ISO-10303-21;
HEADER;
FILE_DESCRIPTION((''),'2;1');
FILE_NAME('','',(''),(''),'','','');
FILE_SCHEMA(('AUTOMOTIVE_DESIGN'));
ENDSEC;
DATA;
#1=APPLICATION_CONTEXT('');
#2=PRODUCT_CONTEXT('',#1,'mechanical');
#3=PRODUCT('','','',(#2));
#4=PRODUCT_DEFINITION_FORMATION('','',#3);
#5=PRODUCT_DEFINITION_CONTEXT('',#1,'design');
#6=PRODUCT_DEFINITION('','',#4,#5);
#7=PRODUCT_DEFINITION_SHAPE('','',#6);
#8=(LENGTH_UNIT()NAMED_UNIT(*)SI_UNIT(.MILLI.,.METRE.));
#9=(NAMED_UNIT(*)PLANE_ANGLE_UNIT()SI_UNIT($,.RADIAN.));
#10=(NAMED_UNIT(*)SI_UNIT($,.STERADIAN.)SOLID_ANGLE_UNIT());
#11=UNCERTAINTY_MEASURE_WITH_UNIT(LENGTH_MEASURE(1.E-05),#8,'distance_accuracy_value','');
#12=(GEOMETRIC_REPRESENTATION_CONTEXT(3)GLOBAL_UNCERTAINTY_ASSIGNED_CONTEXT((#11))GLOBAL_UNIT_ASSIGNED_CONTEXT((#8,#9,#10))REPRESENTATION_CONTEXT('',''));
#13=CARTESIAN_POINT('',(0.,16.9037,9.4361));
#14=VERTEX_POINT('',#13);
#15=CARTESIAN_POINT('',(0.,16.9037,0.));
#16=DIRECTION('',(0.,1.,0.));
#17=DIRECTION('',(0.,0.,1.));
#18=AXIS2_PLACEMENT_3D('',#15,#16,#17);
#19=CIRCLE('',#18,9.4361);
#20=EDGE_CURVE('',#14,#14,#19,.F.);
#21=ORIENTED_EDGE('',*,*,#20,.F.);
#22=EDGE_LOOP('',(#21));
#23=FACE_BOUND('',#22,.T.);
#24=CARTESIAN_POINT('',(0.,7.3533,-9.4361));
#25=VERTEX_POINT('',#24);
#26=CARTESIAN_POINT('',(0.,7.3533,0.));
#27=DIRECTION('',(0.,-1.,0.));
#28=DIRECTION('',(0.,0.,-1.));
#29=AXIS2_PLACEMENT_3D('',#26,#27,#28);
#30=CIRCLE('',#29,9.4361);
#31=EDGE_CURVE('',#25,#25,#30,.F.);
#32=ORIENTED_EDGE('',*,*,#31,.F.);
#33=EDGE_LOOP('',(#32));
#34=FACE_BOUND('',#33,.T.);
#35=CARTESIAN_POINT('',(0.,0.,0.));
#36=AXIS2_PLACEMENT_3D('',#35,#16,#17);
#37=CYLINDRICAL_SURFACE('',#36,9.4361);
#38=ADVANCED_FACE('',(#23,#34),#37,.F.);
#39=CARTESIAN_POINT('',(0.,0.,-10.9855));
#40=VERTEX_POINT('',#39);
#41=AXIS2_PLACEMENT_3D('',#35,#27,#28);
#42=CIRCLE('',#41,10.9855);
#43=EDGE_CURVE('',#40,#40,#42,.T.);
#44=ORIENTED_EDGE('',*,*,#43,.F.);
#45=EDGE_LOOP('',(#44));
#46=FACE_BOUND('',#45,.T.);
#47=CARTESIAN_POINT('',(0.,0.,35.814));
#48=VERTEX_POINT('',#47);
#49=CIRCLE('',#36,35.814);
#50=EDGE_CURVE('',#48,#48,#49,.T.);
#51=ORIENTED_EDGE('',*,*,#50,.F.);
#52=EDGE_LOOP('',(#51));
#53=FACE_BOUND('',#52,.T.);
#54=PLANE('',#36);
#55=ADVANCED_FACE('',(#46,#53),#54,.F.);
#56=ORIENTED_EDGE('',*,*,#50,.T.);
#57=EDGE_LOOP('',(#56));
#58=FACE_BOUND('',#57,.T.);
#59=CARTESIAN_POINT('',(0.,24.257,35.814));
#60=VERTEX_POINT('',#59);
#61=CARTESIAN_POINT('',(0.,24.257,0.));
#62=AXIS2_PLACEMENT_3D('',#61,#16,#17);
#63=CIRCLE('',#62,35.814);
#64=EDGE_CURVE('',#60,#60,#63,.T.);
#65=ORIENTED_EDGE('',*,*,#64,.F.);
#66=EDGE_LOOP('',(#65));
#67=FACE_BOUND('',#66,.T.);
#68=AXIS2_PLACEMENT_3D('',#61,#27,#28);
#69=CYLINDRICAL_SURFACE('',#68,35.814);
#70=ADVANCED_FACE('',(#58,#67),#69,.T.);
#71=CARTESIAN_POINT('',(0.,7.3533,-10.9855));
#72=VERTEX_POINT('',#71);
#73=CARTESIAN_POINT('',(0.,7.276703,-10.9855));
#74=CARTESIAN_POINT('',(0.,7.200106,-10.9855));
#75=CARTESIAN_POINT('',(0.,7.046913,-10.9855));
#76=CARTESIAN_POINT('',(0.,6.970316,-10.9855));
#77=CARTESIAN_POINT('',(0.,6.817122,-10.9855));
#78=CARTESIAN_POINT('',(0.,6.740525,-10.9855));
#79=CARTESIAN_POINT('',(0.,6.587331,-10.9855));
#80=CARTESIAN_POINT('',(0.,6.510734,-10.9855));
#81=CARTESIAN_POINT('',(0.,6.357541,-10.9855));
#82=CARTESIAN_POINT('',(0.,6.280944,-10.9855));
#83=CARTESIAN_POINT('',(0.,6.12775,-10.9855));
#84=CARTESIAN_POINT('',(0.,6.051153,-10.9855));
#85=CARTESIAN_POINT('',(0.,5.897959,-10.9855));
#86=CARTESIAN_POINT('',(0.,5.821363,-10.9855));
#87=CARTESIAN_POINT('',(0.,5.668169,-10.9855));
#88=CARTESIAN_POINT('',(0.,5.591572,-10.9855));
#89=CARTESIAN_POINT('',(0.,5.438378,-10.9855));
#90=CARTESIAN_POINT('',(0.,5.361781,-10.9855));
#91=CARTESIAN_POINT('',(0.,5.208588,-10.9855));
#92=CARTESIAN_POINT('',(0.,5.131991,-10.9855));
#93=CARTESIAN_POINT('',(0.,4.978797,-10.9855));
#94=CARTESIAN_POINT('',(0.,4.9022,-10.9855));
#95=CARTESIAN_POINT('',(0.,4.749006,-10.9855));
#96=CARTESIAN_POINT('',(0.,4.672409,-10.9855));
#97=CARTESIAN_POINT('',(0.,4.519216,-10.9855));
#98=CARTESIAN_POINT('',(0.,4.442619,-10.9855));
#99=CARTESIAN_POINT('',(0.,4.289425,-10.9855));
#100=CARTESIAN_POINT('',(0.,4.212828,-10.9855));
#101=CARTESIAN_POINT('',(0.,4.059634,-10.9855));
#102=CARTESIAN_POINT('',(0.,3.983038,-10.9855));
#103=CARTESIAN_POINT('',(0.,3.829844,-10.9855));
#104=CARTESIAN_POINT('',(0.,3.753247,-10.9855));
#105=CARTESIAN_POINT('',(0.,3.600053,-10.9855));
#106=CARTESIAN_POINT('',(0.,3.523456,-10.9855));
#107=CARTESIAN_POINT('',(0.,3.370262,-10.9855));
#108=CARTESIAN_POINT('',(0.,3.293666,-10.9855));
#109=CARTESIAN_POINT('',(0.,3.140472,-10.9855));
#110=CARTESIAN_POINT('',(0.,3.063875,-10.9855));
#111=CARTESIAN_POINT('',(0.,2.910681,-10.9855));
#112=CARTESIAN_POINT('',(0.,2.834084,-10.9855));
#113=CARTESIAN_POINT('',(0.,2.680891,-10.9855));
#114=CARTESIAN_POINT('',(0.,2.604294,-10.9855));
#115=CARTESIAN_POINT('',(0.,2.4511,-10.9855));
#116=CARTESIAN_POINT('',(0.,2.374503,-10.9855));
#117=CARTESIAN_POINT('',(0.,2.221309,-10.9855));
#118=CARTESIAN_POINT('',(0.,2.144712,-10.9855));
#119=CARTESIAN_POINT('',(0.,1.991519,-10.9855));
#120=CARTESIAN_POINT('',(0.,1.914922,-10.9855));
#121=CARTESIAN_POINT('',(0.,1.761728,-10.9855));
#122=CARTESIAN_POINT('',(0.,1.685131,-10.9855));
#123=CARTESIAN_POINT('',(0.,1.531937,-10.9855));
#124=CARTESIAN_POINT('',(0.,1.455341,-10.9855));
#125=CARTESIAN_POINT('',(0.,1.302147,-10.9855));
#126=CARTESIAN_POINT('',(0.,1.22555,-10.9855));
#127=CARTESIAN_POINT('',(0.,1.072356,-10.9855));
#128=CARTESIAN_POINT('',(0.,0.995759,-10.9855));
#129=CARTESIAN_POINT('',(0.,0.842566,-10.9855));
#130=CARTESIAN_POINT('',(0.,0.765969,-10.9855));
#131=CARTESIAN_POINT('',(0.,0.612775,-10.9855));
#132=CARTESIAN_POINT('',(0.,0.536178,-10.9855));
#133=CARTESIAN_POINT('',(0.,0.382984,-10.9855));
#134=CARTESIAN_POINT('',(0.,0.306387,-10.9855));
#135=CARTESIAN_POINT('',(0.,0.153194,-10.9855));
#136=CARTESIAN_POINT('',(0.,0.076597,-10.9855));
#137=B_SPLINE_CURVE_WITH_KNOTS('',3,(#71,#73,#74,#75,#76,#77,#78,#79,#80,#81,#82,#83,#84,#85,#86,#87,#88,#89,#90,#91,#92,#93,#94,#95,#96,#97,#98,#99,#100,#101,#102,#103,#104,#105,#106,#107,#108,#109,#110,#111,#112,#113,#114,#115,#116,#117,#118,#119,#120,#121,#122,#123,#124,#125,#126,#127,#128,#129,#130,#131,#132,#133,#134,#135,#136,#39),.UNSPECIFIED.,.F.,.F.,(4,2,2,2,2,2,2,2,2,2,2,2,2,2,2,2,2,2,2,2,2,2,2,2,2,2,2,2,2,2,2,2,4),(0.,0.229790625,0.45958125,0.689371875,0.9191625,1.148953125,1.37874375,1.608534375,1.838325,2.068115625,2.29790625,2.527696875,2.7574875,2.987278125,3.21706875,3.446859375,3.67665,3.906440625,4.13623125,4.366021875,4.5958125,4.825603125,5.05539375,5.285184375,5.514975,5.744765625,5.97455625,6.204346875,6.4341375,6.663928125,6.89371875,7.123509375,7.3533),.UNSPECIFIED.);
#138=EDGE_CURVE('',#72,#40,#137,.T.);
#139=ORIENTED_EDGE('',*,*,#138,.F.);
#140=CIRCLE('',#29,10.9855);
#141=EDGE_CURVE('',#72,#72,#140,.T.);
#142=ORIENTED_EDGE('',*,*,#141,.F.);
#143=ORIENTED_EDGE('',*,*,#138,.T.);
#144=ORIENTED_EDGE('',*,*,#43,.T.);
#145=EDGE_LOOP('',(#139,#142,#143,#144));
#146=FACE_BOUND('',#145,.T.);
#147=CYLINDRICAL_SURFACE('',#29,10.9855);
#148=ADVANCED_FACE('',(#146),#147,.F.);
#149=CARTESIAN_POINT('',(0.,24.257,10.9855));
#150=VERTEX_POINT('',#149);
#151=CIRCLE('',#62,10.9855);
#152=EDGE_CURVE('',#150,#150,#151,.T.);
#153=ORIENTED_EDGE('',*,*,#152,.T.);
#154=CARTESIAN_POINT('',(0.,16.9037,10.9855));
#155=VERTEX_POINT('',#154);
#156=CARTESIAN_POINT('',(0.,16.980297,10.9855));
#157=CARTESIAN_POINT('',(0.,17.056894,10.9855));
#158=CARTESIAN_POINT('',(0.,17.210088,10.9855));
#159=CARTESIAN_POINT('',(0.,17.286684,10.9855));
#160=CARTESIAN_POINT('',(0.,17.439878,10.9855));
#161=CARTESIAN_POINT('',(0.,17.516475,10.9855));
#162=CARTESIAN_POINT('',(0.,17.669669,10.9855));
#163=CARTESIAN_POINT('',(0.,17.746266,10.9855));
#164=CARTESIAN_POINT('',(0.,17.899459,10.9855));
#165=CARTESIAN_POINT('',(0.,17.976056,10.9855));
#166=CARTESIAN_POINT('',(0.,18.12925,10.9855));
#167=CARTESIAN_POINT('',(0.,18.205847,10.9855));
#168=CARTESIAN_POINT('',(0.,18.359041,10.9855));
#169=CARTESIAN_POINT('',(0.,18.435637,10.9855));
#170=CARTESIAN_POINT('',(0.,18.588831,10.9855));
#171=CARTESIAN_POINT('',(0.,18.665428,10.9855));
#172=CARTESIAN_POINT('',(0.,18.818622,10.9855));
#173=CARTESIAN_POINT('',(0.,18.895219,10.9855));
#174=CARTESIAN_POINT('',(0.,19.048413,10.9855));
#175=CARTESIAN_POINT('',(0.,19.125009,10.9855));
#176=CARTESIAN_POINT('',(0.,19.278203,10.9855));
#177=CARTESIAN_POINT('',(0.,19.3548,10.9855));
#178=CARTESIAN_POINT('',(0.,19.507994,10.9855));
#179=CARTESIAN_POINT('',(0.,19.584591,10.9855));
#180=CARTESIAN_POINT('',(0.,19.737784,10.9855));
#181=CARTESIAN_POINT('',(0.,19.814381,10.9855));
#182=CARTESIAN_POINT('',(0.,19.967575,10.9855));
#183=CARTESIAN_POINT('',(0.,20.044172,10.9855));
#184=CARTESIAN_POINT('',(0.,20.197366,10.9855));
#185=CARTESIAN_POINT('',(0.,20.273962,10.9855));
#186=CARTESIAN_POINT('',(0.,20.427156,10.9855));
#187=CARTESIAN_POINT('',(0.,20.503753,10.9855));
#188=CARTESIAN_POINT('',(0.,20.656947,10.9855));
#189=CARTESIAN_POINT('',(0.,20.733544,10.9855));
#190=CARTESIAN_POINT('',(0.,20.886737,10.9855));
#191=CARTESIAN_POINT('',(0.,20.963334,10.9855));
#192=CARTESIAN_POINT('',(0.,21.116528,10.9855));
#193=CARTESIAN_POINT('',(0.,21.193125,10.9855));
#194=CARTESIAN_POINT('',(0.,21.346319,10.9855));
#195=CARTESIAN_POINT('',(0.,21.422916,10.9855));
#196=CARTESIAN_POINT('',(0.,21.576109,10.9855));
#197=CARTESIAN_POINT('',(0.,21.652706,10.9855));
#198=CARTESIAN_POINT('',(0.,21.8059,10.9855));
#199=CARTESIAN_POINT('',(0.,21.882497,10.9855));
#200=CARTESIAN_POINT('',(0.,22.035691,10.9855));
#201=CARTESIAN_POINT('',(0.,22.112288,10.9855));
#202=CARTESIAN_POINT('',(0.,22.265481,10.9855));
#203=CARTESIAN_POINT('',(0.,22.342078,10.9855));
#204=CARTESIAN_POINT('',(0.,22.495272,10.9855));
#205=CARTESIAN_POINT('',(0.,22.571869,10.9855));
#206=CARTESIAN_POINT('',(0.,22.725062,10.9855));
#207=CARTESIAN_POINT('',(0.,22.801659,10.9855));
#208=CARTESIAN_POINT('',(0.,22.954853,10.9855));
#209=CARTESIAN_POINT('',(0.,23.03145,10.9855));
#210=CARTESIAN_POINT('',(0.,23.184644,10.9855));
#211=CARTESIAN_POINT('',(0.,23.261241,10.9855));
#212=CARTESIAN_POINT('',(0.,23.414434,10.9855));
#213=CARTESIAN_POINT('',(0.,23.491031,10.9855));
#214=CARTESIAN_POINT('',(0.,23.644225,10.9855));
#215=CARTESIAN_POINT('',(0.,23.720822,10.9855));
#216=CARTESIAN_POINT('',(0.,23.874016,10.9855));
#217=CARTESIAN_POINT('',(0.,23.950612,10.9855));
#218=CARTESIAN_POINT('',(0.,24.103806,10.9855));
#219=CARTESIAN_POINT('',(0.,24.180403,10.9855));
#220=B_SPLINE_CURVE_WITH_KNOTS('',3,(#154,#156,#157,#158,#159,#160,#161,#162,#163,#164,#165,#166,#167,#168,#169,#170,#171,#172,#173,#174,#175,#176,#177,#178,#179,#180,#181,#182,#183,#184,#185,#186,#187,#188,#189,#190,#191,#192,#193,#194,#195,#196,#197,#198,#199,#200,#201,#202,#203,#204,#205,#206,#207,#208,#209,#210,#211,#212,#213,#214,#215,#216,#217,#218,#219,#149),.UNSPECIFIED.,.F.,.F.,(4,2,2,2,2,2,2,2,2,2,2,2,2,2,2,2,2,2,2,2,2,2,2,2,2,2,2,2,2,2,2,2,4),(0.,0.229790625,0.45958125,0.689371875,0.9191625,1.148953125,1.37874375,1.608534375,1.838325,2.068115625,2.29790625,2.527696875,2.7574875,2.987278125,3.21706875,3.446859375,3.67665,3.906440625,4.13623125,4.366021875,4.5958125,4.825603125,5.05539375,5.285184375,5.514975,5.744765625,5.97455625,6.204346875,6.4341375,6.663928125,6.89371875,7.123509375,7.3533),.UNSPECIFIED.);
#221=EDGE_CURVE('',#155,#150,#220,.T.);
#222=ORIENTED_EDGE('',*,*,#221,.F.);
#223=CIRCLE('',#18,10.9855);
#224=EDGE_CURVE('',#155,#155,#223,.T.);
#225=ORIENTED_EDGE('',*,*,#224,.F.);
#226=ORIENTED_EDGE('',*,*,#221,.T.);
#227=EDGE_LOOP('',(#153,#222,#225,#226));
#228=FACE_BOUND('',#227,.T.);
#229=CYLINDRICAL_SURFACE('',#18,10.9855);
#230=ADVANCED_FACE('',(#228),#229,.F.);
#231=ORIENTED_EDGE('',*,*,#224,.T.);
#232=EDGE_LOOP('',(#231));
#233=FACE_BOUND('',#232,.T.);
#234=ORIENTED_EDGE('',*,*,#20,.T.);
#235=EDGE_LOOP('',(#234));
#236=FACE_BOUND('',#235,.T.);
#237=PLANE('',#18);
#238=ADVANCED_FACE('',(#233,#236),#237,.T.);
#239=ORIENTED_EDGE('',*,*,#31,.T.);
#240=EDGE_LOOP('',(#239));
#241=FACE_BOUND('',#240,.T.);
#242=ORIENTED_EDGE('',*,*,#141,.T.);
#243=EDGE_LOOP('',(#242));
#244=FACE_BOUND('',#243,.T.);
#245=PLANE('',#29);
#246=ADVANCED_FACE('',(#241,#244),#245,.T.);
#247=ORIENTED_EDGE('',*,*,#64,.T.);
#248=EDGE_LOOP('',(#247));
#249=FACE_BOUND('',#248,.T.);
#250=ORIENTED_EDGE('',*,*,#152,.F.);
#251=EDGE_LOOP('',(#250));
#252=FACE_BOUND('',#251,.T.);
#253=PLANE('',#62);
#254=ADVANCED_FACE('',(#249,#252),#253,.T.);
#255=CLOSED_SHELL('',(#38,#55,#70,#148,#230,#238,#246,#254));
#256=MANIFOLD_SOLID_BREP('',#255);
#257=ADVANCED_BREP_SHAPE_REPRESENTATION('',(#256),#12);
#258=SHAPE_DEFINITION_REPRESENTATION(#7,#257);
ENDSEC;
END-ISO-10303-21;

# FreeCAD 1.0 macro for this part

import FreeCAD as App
import Part
import Sketcher
Q = App.Units.Quantity

doc = App.newDocument("Part")
body = doc.addObject("PartDesign::Body", "Body")

sketch1 = body.newObject("Sketcher::SketchObject", "Sketch")
sketch1.AttachmentSupport = (doc.getObject("XZ_Plane"), [""])
sketch1.MapMode = "FlatFace"
sketch1.addGeometry(Part.Circle(App.Vector(0, 0, 0), App.Vector(0, 0, 1), 36), False)
sketch1.addConstraint([
    Sketcher.Constraint("Coincident", 0, 3, -1, 1),
    Sketcher.Constraint("Diameter", 0, Q("2.82 in")),
])
pad1 = body.newObject("PartDesign::Pad", "Pad")
pad1.Profile = sketch1
pad1.Length = Q("0.955 in")
pad1.Reversed = True

sketch2 = body.newObject("Sketcher::SketchObject", "Sketch001")
sketch2.AttachmentSupport = (doc.getObject("XZ_Plane"), [""])
sketch2.MapMode = "FlatFace"
sketch2.AttachmentOffset = App.Placement(App.Vector(0, 0, -0.955 * 25.4), App.Rotation())
sketch2.addGeometry(Part.Circle(App.Vector(0, 0, 0), App.Vector(0, 0, 1), 9), False)
sketch2.addConstraint([
    Sketcher.Constraint("Coincident", 0, 3, -1, 1),
    Sketcher.Constraint("Diameter", 0, Q("0.743 in")),
])
pocket1 = body.newObject("PartDesign::Pocket", "Pocket")
pocket1.Profile = sketch2
pocket1.Type = "ThroughAll"
pocket1.Reversed = True

sketch3 = body.newObject("Sketcher::SketchObject", "Sketch002")
sketch3.AttachmentSupport = (doc.getObject("XZ_Plane"), [""])
sketch3.MapMode = "FlatFace"
sketch3.AttachmentOffset = App.Placement(App.Vector(0, 0, -0.955 * 25.4), App.Rotation())
sketch3.addGeometry(Part.Circle(App.Vector(0, 0, 0), App.Vector(0, 0, 1), 11), False)
sketch3.addConstraint([
    Sketcher.Constraint("Coincident", 0, 3, -1, 1),
    Sketcher.Constraint("Diameter", 0, Q("0.865 in")),
])
pocket2 = body.newObject("PartDesign::Pocket", "Pocket001")
pocket2.Profile = sketch3
pocket2.Length = Q("0.2895 in")
pocket2.Reversed = True

sketch4 = body.newObject("Sketcher::SketchObject", "Sketch003")
sketch4.AttachmentSupport = (doc.getObject("XZ_Plane"), [""])
sketch4.MapMode = "FlatFace"
sketch4.AttachmentOffset = App.Placement(App.Vector(0, 0, -0.2895 * 25.4), App.Rotation())
sketch4.addGeometry(Part.Circle(App.Vector(0, 0, 0), App.Vector(0, 0, 1), 11), False)
sketch4.addConstraint([
    Sketcher.Constraint("Coincident", 0, 3, -1, 1),
    Sketcher.Constraint("Diameter", 0, Q("0.865 in")),
])
pocket3 = body.newObject("PartDesign::Pocket", "Pocket002")
pocket3.Profile = sketch4
pocket3.Length = Q("0.2895 in")
pocket3.Reversed = True

doc.recompute()
